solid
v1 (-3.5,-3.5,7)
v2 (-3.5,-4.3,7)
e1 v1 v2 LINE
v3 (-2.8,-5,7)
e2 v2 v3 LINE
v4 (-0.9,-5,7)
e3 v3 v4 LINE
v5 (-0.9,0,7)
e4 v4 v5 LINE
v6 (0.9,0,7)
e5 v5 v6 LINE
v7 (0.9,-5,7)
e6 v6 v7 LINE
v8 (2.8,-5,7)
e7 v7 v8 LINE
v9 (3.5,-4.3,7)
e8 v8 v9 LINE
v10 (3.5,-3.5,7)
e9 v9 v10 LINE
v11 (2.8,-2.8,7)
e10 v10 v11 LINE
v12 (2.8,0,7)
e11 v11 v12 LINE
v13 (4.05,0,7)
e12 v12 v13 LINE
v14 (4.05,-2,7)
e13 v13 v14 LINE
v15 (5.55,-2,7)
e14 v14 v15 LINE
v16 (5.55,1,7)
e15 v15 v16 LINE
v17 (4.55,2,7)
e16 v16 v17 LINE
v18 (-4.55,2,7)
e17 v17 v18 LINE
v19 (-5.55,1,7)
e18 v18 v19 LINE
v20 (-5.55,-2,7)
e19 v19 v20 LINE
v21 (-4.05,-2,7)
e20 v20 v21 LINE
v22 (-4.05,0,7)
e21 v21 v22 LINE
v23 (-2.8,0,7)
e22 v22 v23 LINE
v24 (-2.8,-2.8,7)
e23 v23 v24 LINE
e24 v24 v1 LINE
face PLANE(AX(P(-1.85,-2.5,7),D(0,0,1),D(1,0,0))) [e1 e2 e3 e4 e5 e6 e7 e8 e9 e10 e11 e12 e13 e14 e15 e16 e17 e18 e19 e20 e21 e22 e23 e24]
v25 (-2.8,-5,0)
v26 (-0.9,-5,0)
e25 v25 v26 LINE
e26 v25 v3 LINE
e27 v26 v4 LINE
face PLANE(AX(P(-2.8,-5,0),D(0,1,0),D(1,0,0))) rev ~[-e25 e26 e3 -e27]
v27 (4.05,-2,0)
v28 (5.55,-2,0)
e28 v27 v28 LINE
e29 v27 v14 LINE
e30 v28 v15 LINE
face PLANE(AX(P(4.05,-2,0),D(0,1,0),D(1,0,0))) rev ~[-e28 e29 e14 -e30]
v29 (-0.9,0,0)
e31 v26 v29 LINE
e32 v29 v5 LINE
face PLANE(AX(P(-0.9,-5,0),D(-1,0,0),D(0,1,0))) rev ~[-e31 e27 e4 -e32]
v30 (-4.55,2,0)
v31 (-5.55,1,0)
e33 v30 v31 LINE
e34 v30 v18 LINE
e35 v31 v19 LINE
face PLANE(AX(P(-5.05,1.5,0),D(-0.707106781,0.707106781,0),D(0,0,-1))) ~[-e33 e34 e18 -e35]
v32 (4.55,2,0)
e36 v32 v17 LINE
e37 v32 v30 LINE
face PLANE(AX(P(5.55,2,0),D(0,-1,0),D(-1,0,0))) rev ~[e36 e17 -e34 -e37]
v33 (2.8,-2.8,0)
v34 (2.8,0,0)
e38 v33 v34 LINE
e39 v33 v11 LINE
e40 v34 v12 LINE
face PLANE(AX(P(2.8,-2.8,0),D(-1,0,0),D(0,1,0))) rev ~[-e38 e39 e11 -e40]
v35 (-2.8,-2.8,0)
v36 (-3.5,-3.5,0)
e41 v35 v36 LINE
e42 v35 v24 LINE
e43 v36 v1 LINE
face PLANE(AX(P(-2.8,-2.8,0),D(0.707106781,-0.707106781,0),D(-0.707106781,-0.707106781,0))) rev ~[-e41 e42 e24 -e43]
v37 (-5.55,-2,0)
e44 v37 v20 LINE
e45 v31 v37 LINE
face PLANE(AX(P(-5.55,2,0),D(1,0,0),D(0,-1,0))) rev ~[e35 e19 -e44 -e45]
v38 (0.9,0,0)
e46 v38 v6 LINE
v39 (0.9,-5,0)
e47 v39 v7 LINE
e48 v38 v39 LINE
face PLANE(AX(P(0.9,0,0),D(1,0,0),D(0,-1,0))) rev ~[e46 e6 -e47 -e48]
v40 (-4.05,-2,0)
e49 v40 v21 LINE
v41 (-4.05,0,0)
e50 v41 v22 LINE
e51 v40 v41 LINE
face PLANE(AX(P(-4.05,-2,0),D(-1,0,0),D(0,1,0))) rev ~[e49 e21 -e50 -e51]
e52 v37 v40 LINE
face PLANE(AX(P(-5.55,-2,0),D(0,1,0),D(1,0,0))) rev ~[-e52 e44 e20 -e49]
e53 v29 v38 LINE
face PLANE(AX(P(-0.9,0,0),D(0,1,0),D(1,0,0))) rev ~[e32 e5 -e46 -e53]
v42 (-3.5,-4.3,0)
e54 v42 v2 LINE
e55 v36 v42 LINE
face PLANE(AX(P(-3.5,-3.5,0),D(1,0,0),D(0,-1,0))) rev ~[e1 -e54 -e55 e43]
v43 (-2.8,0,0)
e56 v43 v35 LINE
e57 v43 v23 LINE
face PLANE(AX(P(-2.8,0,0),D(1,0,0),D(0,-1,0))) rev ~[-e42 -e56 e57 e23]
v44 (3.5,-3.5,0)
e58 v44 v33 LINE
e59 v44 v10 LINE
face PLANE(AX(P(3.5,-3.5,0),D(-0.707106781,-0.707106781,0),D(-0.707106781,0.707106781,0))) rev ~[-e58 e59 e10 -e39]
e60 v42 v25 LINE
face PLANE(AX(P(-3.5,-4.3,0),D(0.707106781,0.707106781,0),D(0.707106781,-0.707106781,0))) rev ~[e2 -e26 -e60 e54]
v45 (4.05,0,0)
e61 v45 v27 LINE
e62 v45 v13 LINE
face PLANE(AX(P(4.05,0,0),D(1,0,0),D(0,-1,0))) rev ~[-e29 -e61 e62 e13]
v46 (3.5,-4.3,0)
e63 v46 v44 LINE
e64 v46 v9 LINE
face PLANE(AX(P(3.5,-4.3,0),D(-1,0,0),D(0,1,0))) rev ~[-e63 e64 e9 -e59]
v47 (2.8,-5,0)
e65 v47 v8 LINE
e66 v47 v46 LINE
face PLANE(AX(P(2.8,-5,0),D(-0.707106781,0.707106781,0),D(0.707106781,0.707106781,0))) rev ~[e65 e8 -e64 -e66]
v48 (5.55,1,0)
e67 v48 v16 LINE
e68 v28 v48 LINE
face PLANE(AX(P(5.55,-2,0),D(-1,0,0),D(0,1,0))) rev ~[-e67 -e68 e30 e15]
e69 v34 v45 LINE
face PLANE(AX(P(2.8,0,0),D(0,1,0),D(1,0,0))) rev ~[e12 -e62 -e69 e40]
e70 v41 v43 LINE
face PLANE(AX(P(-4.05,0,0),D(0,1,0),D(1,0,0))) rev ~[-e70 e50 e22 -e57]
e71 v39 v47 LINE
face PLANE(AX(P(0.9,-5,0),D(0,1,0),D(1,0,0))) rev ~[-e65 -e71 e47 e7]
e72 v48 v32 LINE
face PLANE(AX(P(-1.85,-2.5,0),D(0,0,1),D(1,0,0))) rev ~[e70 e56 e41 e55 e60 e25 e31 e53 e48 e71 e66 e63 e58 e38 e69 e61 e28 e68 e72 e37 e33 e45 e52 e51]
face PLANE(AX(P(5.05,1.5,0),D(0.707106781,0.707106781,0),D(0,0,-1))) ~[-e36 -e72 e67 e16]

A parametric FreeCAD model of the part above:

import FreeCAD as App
import Part
import Sketcher
from FreeCAD import Vector
Q = App.Units.Quantity


def edges_at(feature, points):
    """Names of the edges that pass closest to the given points."""
    edges = feature.Shape.Edges
    near = lambda p: min(range(len(edges)), key=lambda i: edges[i].distToShape(Part.Vertex(*p))[0])
    return sorted({f"Edge{near(p) + 1}" for p in points})

doc = App.newDocument("Part")
params = doc.addObject("Spreadsheet::Sheet", "Params")
for row, (alias, value) in enumerate([
    ("sketch1_height", "5 mm"),
    ("sketch1_height2", "2 mm"),
    ("sketch1_width", "1.8 mm"),
    ("sketch1_width2", "1.9 mm"),
    ("sketch1_width3", "1.5 mm"),
    ("pad1_length", "7 mm"),
    ("chamfer_size", "1 mm"),
], start=1):
    params.set(f"A{row}", alias)
    params.set(f"B{row}", "=" + value)
    params.setAlias(f"B{row}", alias)

body = doc.addObject("PartDesign::Body", "Body")

# Sketch on XY plane
sketch1 = body.newObject("Sketcher::SketchObject", "Sketch")
sketch1.AttachmentSupport = (doc.getObject("XY_Plane"), [""])
sketch1.MapMode = "FlatFace"
sketch1.addGeometry([
    Part.LineSegment(Vector(-0.9, -5, 0), Vector(-0.9, 0, 0)),  # 0
    Part.LineSegment(Vector(-0.9, 0, 0), Vector(0.9, 0, 0)),  # 1
    Part.LineSegment(Vector(0.9, 0, 0), Vector(0.9, -5, 0)),  # 2
    Part.LineSegment(Vector(0.9, -5, 0), Vector(2.8, -5, 0)),  # 3
    Part.LineSegment(Vector(2.8, -5, 0), Vector(3.5, -4.3, 0)),  # 4
    Part.LineSegment(Vector(3.5, -4.3, 0), Vector(3.5, -3.5, 0)),  # 5
    Part.LineSegment(Vector(3.5, -3.5, 0), Vector(2.8, -2.8, 0)),  # 6
    Part.LineSegment(Vector(2.8, -2.8, 0), Vector(2.8, 0, 0)),  # 7
    Part.LineSegment(Vector(2.8, 0, 0), Vector(4, 0, 0)),  # 8
    Part.LineSegment(Vector(4, 0, 0), Vector(4, -2, 0)),  # 9
    Part.LineSegment(Vector(4, -2, 0), Vector(5.5, -2, 0)),  # 10
    Part.LineSegment(Vector(5.5, -2, 0), Vector(5.5, 2, 0)),  # 11
    Part.LineSegment(Vector(5.5, 2, 0), Vector(-5.5, 2, 0)),  # 12
    Part.LineSegment(Vector(-5.5, 2, 0), Vector(-5.5, -2, 0)),  # 13
    Part.LineSegment(Vector(-5.5, -2, 0), Vector(-4, -2, 0)),  # 14
    Part.LineSegment(Vector(-4, -2, 0), Vector(-4, 0, 0)),  # 15
    Part.LineSegment(Vector(-4, 0, 0), Vector(-2.8, 0, 0)),  # 16
    Part.LineSegment(Vector(-2.8, 0, 0), Vector(-2.8, -2.8, 0)),  # 17
    Part.LineSegment(Vector(-2.8, -2.8, 0), Vector(-3.5, -3.5, 0)),  # 18
    Part.LineSegment(Vector(-3.5, -3.5, 0), Vector(-3.5, -4.3, 0)),  # 19
    Part.LineSegment(Vector(-3.5, -4.3, 0), Vector(-2.8, -5, 0)),  # 20
    Part.LineSegment(Vector(-2.8, -5, 0), Vector(-0.9, -5, 0)),  # 21
], False)
sketch1.addConstraint([
    Sketcher.Constraint("Coincident", 0, 2, 1, 1),
    Sketcher.Constraint("Coincident", 1, 2, 2, 1),
    Sketcher.Constraint("Coincident", 2, 2, 3, 1),
    Sketcher.Constraint("Coincident", 3, 2, 4, 1),
    Sketcher.Constraint("Coincident", 4, 2, 5, 1),
    Sketcher.Constraint("Coincident", 5, 2, 6, 1),
    Sketcher.Constraint("Coincident", 6, 2, 7, 1),
    Sketcher.Constraint("Coincident", 7, 2, 8, 1),
    Sketcher.Constraint("Coincident", 8, 2, 9, 1),
    Sketcher.Constraint("Coincident", 9, 2, 10, 1),
    Sketcher.Constraint("Coincident", 10, 2, 11, 1),
    Sketcher.Constraint("Coincident", 11, 2, 12, 1),
    Sketcher.Constraint("Coincident", 12, 2, 13, 1),
    Sketcher.Constraint("Coincident", 13, 2, 14, 1),
    Sketcher.Constraint("Coincident", 14, 2, 15, 1),
    Sketcher.Constraint("Coincident", 15, 2, 16, 1),
    Sketcher.Constraint("Coincident", 16, 2, 17, 1),
    Sketcher.Constraint("Coincident", 17, 2, 18, 1),
    Sketcher.Constraint("Coincident", 18, 2, 19, 1),
    Sketcher.Constraint("Coincident", 19, 2, 20, 1),
    Sketcher.Constraint("Coincident", 20, 2, 21, 1),
    Sketcher.Constraint("Coincident", 21, 2, 0, 1),
    Sketcher.Constraint("Vertical", 0),
    Sketcher.Constraint("Horizontal", 1),
    Sketcher.Constraint("Vertical", 2),
    Sketcher.Constraint("Horizontal", 3),
    Sketcher.Constraint("Vertical", 5),
    Sketcher.Constraint("Vertical", 7),
    Sketcher.Constraint("Horizontal", 8),
    Sketcher.Constraint("Vertical", 9),
    Sketcher.Constraint("Horizontal", 10),
    Sketcher.Constraint("Vertical", 11),
    Sketcher.Constraint("Horizontal", 12),
    Sketcher.Constraint("Vertical", 13),
    Sketcher.Constraint("Horizontal", 14),
    Sketcher.Constraint("Vertical", 15),
    Sketcher.Constraint("Horizontal", 16),
    Sketcher.Constraint("Vertical", 17),
    Sketcher.Constraint("Vertical", 19),
    Sketcher.Constraint("Horizontal", 21),
    Sketcher.Constraint("Symmetric", 0, 2, 1, 2, -1, 1),
    Sketcher.Constraint("Symmetric", 10, 2, 12, 2, -1, 1),
    Sketcher.Constraint("Symmetric", 8, 2, 15, 2, -1, 1),
    Sketcher.Constraint("Symmetric", 7, 2, 16, 2, -2),
    Sketcher.Constraint("Symmetric", 5, 2, 18, 2, -2),
    Sketcher.Constraint("Symmetric", 3, 2, 20, 2, -2),
    Sketcher.Constraint("Perpendicular", 4, 6),
    Sketcher.Constraint("Perpendicular", 6, 18),
    Sketcher.Constraint("Perpendicular", 18, 20),
    Sketcher.Constraint("Horizontal", 10, 2, 13, 2),
    Sketcher.Constraint("Horizontal", 6, 2, 17, 2),
    Sketcher.Constraint("Vertical", 3, 2, 6, 2),
    Sketcher.Constraint("DistanceY", 0, 1, 0, 2, Q("5 mm")),
    Sketcher.Constraint("DistanceY", 9, 2, 9, 1, Q("2 mm")),
    Sketcher.Constraint("DistanceX", 1, 1, 1, 2, Q("1.8 mm")),
    Sketcher.Constraint("DistanceX", 3, 1, 3, 2, Q("1.9 mm")),
    Sketcher.Constraint("DistanceX", 10, 1, 10, 2, Q("1.5 mm")),
    Sketcher.Constraint("DistanceX", 12, 2, 12, 1, Q("11.1 mm")),
    Sketcher.Constraint("DistanceY", 5, 1, 5, 2, Q("0.8 mm")),
    Sketcher.Constraint("DistanceY", 7, 1, 7, 2, Q("2.8 mm")),
])
sketch1.setExpression("Constraints[52]", "Params.sketch1_height")
sketch1.setExpression("Constraints[53]", "Params.sketch1_height2")
sketch1.setExpression("Constraints[54]", "Params.sketch1_width")
sketch1.setExpression("Constraints[55]", "Params.sketch1_width2")
sketch1.setExpression("Constraints[56]", "Params.sketch1_width3")
pad1 = body.newObject("PartDesign::Pad", "Pad")
pad1.Profile = sketch1
pad1.setExpression("Length", "Params.pad1_length")
doc.recompute()

chamfer = body.newObject("PartDesign::Chamfer", "Chamfer")
chamfer.Base = (pad1, edges_at(pad1, [(-5.55, 2, 3.5), (5.55, 2, 3.5)]))
chamfer.setExpression("Size", "Params.chamfer_size")

doc.recompute()
